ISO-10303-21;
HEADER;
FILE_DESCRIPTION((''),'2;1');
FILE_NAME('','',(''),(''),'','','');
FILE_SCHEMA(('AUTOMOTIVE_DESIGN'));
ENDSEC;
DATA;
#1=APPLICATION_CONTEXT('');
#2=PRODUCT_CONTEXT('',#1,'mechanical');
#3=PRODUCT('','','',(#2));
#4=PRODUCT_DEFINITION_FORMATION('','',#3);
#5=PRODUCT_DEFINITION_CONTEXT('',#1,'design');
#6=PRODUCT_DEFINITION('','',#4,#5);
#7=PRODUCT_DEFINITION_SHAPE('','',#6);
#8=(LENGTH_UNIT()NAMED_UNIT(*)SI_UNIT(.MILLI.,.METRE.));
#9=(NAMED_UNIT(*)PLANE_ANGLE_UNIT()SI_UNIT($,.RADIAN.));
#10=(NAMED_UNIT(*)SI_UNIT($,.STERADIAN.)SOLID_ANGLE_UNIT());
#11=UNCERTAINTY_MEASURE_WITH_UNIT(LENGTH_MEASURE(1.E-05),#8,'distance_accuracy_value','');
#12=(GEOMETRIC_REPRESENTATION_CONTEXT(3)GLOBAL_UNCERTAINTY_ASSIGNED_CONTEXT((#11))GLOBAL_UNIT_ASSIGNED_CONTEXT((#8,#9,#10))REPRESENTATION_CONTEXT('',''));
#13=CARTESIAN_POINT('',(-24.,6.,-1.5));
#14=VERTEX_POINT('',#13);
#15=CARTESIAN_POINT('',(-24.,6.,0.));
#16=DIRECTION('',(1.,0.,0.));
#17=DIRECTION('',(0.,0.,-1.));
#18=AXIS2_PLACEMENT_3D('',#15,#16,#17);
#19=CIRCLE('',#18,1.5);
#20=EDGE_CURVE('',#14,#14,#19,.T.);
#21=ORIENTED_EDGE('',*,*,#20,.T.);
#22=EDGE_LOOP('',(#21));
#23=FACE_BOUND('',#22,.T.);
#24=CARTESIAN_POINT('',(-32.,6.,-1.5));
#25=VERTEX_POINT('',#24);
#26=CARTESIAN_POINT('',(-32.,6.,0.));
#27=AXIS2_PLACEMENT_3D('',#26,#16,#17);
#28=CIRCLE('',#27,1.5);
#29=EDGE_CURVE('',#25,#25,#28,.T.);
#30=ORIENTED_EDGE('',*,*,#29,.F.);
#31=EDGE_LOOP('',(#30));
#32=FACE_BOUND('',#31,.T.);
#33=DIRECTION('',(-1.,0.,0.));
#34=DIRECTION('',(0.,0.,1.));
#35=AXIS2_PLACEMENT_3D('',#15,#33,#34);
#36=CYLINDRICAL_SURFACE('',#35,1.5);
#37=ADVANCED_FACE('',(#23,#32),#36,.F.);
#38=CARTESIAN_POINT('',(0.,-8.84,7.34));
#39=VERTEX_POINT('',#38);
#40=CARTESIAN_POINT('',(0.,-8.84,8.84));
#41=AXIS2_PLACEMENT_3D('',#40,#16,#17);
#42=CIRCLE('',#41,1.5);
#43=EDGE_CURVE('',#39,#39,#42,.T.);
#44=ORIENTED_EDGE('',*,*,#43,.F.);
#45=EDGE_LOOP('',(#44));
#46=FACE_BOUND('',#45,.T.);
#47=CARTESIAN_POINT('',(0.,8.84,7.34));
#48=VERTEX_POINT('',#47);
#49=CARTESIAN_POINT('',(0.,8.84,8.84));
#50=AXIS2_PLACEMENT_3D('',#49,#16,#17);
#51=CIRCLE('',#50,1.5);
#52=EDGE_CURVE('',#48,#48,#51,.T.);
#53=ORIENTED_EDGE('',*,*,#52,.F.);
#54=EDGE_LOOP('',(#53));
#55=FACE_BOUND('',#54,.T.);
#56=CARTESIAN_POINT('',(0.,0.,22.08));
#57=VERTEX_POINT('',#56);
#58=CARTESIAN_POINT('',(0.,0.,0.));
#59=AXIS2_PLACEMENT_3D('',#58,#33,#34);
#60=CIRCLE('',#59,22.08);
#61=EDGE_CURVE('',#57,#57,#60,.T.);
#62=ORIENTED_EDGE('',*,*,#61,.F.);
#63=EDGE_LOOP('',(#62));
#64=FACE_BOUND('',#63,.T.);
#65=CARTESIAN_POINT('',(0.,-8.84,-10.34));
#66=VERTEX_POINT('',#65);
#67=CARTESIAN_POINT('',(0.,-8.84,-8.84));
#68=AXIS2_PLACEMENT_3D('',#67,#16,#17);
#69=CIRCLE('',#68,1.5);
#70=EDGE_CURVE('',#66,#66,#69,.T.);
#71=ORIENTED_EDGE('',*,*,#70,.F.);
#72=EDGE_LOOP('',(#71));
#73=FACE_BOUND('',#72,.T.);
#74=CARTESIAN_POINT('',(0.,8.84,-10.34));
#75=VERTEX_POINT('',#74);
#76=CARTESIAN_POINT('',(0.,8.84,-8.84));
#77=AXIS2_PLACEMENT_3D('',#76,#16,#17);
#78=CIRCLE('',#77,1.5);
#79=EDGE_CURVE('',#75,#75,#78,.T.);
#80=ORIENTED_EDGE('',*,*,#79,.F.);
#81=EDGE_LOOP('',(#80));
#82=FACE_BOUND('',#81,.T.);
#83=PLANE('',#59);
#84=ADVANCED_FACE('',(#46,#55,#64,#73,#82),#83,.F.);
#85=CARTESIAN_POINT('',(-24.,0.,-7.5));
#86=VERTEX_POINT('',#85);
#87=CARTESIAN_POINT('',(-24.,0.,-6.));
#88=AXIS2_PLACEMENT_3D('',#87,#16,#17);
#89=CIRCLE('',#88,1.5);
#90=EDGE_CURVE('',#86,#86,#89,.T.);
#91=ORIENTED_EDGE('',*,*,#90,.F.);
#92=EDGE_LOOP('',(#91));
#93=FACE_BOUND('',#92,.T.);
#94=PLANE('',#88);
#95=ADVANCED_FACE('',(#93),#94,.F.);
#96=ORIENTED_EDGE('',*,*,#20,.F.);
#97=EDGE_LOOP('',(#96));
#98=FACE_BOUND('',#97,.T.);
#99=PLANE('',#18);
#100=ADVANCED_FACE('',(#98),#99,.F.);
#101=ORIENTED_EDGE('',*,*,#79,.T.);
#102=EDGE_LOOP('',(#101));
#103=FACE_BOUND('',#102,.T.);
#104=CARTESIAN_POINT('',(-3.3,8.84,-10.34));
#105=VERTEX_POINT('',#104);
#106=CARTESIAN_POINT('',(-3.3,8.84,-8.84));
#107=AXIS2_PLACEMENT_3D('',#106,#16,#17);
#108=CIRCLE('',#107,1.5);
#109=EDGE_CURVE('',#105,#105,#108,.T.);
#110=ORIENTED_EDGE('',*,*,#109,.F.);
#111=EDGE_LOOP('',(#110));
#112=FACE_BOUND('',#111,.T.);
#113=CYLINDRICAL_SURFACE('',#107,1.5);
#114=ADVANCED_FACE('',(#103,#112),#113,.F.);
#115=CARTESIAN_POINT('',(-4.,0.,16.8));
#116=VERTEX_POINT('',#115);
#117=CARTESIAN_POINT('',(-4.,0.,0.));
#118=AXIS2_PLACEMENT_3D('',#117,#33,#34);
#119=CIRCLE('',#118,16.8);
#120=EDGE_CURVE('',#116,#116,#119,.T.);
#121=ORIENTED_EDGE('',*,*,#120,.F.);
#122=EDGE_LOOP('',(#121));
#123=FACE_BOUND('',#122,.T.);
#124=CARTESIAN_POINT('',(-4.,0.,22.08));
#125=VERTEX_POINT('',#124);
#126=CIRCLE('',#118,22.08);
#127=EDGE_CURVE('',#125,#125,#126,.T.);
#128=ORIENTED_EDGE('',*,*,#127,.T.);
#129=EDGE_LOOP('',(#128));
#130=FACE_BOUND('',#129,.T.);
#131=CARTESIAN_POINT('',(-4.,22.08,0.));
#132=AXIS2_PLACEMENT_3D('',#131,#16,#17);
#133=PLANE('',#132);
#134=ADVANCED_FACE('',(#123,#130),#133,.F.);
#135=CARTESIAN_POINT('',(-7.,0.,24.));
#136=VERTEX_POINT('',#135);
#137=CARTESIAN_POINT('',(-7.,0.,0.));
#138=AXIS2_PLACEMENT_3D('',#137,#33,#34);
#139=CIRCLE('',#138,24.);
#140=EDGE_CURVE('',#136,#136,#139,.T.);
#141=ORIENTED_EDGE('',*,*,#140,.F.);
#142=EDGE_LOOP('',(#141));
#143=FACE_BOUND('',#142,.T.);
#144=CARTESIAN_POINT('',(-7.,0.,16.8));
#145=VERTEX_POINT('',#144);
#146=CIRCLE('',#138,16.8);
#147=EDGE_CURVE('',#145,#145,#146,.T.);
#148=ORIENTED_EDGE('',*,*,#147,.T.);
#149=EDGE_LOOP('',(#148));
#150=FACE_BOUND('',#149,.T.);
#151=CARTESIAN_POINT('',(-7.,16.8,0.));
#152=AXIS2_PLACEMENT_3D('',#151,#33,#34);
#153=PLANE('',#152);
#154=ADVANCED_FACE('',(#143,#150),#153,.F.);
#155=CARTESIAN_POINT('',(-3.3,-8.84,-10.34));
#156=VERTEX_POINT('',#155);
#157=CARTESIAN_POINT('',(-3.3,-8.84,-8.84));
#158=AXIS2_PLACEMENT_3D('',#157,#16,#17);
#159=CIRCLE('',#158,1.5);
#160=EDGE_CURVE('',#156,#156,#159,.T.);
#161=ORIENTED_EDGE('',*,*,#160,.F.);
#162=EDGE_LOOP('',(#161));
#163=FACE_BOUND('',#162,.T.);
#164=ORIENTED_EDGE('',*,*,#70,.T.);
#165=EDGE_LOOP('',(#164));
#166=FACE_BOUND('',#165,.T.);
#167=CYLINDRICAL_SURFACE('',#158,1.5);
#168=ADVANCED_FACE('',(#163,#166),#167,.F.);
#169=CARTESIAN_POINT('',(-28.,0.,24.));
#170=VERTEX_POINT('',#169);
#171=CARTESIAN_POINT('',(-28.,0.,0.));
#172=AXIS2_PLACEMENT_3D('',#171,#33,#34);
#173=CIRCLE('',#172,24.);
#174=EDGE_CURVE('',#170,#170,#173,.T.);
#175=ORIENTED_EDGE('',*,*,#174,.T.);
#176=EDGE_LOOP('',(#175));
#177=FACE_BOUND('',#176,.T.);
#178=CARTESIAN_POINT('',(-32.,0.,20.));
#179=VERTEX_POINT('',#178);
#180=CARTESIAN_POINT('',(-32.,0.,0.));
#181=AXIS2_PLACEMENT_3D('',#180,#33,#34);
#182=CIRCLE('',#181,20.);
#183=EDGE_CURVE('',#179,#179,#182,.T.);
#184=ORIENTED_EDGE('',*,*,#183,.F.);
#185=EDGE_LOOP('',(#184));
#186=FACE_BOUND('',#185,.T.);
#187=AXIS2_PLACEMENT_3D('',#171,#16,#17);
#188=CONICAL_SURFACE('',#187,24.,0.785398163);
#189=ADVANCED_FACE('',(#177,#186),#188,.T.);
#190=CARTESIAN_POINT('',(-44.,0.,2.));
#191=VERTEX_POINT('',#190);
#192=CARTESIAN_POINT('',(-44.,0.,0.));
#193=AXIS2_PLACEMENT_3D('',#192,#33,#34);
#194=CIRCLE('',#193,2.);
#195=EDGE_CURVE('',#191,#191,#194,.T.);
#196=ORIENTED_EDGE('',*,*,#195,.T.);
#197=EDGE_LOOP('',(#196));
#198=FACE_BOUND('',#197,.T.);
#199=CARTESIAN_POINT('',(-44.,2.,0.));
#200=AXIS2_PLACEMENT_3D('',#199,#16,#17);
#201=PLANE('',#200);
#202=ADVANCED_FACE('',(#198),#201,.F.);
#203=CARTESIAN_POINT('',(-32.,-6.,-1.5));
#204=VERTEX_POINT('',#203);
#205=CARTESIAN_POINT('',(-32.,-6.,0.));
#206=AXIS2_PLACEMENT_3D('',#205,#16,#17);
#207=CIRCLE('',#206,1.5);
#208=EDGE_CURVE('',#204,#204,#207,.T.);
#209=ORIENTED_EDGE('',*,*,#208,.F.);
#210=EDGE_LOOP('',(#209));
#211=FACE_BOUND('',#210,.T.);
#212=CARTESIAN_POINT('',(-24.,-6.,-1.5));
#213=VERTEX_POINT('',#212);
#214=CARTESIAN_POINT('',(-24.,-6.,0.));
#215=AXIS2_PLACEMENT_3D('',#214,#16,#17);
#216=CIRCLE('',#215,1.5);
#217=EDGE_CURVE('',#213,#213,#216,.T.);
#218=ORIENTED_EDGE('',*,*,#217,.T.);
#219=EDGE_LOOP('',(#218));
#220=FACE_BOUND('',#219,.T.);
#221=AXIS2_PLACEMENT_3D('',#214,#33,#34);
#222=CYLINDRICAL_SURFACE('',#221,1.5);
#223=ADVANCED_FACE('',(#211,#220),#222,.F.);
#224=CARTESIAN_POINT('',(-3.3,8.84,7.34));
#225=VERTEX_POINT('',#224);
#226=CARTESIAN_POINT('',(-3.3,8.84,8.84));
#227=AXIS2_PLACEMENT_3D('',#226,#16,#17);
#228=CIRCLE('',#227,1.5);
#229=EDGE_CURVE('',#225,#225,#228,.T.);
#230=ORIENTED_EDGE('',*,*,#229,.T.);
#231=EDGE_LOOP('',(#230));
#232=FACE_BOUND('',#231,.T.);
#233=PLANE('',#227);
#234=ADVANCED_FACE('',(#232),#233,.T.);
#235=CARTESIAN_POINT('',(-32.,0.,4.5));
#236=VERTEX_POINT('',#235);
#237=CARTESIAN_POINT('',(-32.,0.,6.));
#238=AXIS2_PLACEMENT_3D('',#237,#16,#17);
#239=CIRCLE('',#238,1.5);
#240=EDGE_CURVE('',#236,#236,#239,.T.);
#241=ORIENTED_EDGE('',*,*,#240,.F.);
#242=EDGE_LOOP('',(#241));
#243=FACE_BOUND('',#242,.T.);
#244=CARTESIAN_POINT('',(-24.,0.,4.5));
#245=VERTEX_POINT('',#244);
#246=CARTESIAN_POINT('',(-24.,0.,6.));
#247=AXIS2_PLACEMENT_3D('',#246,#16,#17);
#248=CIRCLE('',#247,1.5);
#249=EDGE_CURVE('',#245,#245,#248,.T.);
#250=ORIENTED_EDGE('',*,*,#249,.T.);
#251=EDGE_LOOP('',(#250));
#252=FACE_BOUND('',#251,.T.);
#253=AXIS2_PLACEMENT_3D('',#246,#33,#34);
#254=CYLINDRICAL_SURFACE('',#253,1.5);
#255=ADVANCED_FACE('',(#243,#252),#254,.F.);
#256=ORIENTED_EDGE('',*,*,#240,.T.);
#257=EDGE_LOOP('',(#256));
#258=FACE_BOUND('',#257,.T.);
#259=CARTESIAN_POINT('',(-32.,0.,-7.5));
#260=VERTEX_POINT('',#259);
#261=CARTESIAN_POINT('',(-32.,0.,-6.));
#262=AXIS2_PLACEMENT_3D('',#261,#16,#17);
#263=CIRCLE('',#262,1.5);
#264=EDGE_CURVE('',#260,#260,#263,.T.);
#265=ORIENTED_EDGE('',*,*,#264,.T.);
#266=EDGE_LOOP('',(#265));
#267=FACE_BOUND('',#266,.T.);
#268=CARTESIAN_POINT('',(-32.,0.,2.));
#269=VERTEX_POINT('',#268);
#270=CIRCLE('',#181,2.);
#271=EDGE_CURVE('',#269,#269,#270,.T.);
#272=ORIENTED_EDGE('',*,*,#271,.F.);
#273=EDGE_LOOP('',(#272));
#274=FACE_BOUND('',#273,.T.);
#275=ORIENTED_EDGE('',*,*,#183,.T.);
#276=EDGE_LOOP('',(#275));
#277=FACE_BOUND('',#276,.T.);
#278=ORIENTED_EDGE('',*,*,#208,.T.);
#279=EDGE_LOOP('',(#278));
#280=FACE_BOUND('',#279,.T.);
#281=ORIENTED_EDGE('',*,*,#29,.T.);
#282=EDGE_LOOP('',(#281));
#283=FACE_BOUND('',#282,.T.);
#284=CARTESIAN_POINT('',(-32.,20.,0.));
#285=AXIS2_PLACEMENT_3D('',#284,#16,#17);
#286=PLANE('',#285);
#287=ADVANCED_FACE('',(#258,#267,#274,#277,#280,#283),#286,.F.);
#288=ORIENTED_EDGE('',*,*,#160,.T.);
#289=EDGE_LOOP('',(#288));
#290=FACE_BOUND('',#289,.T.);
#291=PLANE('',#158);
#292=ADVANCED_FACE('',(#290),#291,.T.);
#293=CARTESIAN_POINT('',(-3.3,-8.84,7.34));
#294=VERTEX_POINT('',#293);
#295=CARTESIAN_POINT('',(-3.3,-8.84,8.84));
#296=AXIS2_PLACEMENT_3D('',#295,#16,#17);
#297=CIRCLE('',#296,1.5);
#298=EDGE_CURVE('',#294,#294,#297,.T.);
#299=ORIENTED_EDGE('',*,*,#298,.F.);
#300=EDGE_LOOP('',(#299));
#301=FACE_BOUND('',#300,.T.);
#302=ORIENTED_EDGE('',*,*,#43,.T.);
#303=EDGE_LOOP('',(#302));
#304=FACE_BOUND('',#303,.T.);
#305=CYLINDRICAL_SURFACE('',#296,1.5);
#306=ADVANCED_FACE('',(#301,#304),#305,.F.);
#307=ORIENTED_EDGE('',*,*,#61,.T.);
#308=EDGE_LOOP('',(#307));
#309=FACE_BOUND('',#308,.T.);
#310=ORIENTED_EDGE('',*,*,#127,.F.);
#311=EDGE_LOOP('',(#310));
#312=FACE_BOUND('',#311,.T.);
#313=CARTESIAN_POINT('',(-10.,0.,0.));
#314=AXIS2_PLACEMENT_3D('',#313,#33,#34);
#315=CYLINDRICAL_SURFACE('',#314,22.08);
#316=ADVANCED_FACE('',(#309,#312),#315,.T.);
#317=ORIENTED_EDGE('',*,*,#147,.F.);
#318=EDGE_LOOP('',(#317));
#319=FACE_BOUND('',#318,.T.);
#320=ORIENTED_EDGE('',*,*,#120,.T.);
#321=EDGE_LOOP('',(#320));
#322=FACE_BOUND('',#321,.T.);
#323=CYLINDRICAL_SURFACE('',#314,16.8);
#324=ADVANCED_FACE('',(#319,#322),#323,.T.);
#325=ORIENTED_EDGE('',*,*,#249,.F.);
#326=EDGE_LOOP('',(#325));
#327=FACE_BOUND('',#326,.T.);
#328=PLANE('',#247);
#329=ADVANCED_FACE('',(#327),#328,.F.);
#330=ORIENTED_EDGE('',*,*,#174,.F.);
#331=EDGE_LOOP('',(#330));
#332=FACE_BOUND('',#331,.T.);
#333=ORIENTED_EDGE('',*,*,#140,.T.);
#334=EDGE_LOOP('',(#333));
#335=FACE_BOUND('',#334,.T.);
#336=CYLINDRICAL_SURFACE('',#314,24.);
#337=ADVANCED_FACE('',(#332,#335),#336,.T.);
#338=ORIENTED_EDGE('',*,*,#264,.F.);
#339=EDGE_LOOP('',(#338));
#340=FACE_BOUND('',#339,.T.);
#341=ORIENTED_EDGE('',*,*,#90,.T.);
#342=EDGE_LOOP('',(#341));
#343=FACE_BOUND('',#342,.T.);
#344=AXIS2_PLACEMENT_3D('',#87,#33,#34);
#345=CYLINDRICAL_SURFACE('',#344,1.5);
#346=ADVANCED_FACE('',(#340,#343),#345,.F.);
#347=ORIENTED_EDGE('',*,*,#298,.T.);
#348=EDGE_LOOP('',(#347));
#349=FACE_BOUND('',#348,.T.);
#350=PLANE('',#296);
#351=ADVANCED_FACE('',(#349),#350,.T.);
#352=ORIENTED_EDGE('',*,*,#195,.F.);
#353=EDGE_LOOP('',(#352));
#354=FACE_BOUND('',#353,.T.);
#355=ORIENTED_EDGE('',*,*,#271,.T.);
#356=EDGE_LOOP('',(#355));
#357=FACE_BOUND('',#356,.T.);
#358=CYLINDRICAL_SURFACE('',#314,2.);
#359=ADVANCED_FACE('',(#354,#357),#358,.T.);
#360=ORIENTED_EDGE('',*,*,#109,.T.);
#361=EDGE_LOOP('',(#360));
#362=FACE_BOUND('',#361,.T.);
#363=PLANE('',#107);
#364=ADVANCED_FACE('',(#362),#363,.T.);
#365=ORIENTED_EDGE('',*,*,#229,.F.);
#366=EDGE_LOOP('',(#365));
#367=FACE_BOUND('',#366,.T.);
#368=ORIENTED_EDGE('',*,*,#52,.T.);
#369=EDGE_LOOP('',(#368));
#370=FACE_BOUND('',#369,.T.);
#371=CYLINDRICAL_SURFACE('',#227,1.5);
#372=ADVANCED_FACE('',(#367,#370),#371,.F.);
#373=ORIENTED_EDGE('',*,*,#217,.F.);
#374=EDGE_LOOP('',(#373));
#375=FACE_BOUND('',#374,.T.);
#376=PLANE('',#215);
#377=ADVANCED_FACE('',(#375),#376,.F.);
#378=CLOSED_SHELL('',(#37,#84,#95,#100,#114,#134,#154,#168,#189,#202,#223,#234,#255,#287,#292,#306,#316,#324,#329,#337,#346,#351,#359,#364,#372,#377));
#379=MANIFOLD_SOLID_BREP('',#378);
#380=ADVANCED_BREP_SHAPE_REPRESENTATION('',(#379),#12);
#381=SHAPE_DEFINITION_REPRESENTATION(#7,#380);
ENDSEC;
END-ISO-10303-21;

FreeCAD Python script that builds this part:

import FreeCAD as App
import Part
import Sketcher

V = App.Vector
Q = App.Units.Quantity


def add_polygon(sketch, points):
    """Adds a closed chain of lines whose ends are joined by coincident constraints."""
    first, n = sketch.GeometryCount, len(points)
    for a, b in zip(points, points[1:] + points[:1]):
        sketch.addGeometry(Part.LineSegment(App.Vector(*a, 0), App.Vector(*b, 0)), False)
    for i in range(n):
        sketch.addConstraint(Sketcher.Constraint("Coincident", first + i, 2, first + (i + 1) % n, 1))

doc = App.newDocument("Part")
body = doc.addObject("PartDesign::Body", "Body")

# Sketch on XY plane
sketch1 = doc.addObject("Sketcher::SketchObject", "Sketch")
body.addObject(sketch1)
sketch1.AttachmentSupport = (doc.XY_Plane, [""])
sketch1.MapMode = "FlatFace"
add_polygon(sketch1, [(0, 0), (0, 22.1), (-4, 22.1), (-4, 16.8), (-7, 16.8), (-7, 24), (-28, 24), (-32, 20), (-32, 2), (-44, 2), (-44, 0)])  # lines 0-10
sketch1.addConstraint(Sketcher.Constraint("Vertical", 0))
sketch1.addConstraint(Sketcher.Constraint("Horizontal", 1))
sketch1.addConstraint(Sketcher.Constraint("Vertical", 2))
sketch1.addConstraint(Sketcher.Constraint("Horizontal", 3))
sketch1.addConstraint(Sketcher.Constraint("Vertical", 4))
sketch1.addConstraint(Sketcher.Constraint("Horizontal", 5))
sketch1.addConstraint(Sketcher.Constraint("Vertical", 7))
sketch1.addConstraint(Sketcher.Constraint("Horizontal", 8))
sketch1.addConstraint(Sketcher.Constraint("Vertical", 9))
sketch1.addConstraint(Sketcher.Constraint("Horizontal", 10))
sketch1.addConstraint(Sketcher.Constraint("Coincident", 10, 2, -1, 1))
sketch1.addConstraint(Sketcher.Constraint("DistanceX", 1, 2, 1, 1, 4.0))
sketch1.addConstraint(Sketcher.Constraint("DistanceX", 3, 2, 3, 1, 3.0))
sketch1.addConstraint(Sketcher.Constraint("DistanceX", 5, 2, 5, 1, 21.0))
sketch1.addConstraint(Sketcher.Constraint("DistanceX", 8, 2, 8, 1, 12.0))
sketch1.addConstraint(Sketcher.Constraint("DistanceX", 10, 1, 10, 2, 44.0))
sketch1.addConstraint(Sketcher.Constraint("DistanceY", 7, 2, 7, 1, 18.0))
sketch1.addConstraint(Sketcher.Constraint("DistanceY", 9, 2, 9, 1, 2.0))
sketch1.addConstraint(Sketcher.Constraint("Angle", 6, Q("-135 deg")))
sketch1.addConstraint(Sketcher.Constraint("DistanceY", 4, 1, 4, 2, 7.2))
sketch1.addConstraint(Sketcher.Constraint("DistanceY", 0, 1, 0, 2, 22.08))
revolution = doc.addObject("PartDesign::Revolution", "Revolution")
body.addObject(revolution)
revolution.Profile = sketch1
revolution.ReferenceAxis = (sketch1, ["H_Axis"])
revolution.Angle = 360

# Sketch on YZ plane
sketch2 = doc.addObject("Sketcher::SketchObject", "Sketch001")
body.addObject(sketch2)
sketch2.AttachmentSupport = (doc.YZ_Plane, [""])
sketch2.MapMode = "FlatFace"
sketch2.addGeometry(Part.Circle(V(8.8, 8.8, 0), V(0, 0, 1), 1.5), False)
sketch2.addGeometry(Part.Circle(V(-8.8, 8.8, 0), V(0, 0, 1), 1.5), False)
sketch2.addGeometry(Part.Circle(V(8.8, -8.8, 0), V(0, 0, 1), 1.5), False)
sketch2.addGeometry(Part.Circle(V(-8.8, -8.8, 0), V(0, 0, 1), 1.5), False)
sketch2.addConstraint(Sketcher.Constraint("Equal", 0, 1))
sketch2.addConstraint(Sketcher.Constraint("Equal", 1, 2))
sketch2.addConstraint(Sketcher.Constraint("Equal", 2, 3))
sketch2.addConstraint(Sketcher.Constraint("Symmetric", 1, 3, 2, 3, -1, 1))
sketch2.addConstraint(Sketcher.Constraint("Symmetric", 0, 3, 3, 3, -1, 1))
sketch2.addConstraint(Sketcher.Constraint("Symmetric", 0, 3, 1, 3, -2))
sketch2.addConstraint(Sketcher.Constraint("Diameter", 0, 3.0))
sketch2.addConstraint(Sketcher.Constraint("DistanceX", -1, 1, 0, 3, 8.84))
sketch2.addConstraint(Sketcher.Constraint("DistanceY", -1, 1, 0, 3, 8.84))
pocket1 = doc.addObject("PartDesign::Pocket", "Pocket")
body.addObject(pocket1)
pocket1.Profile = sketch2
pocket1.Length = 3.3

# Sketch on YZ plane
sketch3 = doc.addObject("Sketcher::SketchObject", "Sketch002")
body.addObject(sketch3)
sketch3.AttachmentSupport = (doc.YZ_Plane, [""])
sketch3.MapMode = "FlatFace"
sketch3.AttachmentOffset = App.Placement(V(0, 0, -32), App.Rotation())
sketch3.addGeometry(Part.Circle(V(0, 6, 0), V(0, 0, 1), 1.5), False)
sketch3.addGeometry(Part.Circle(V(0, -6, 0), V(0, 0, 1), 1.5), False)
sketch3.addGeometry(Part.Circle(V(6, 0, 0), V(0, 0, 1), 1.5), False)
sketch3.addGeometry(Part.Circle(V(-6, 0, 0), V(0, 0, 1), 1.5), False)
sketch3.addConstraint(Sketcher.Constraint("Equal", 0, 1))
sketch3.addConstraint(Sketcher.Constraint("Equal", 1, 2))
sketch3.addConstraint(Sketcher.Constraint("Equal", 2, 3))
sketch3.addConstraint(Sketcher.Constraint("Symmetric", 0, 3, 1, 3, -1, 1))
sketch3.addConstraint(Sketcher.Constraint("Symmetric", 2, 3, 3, 3, -1, 1))
sketch3.addConstraint(Sketcher.Constraint("PointOnObject", 0, 3, -2))
sketch3.addConstraint(Sketcher.Constraint("PointOnObject", 2, 3, -1))
sketch3.addConstraint(Sketcher.Constraint("Diameter", 0, 3.0))
sketch3.addConstraint(Sketcher.Constraint("DistanceY", -1, 1, 0, 3, 6.0))
sketch3.addConstraint(Sketcher.Constraint("DistanceX", -1, 1, 2, 3, 6.0))
pocket2 = doc.addObject("PartDesign::Pocket", "Pocket001")
body.addObject(pocket2)
pocket2.Profile = sketch3
pocket2.Length = 8
pocket2.Reversed = True

doc.recompute()
